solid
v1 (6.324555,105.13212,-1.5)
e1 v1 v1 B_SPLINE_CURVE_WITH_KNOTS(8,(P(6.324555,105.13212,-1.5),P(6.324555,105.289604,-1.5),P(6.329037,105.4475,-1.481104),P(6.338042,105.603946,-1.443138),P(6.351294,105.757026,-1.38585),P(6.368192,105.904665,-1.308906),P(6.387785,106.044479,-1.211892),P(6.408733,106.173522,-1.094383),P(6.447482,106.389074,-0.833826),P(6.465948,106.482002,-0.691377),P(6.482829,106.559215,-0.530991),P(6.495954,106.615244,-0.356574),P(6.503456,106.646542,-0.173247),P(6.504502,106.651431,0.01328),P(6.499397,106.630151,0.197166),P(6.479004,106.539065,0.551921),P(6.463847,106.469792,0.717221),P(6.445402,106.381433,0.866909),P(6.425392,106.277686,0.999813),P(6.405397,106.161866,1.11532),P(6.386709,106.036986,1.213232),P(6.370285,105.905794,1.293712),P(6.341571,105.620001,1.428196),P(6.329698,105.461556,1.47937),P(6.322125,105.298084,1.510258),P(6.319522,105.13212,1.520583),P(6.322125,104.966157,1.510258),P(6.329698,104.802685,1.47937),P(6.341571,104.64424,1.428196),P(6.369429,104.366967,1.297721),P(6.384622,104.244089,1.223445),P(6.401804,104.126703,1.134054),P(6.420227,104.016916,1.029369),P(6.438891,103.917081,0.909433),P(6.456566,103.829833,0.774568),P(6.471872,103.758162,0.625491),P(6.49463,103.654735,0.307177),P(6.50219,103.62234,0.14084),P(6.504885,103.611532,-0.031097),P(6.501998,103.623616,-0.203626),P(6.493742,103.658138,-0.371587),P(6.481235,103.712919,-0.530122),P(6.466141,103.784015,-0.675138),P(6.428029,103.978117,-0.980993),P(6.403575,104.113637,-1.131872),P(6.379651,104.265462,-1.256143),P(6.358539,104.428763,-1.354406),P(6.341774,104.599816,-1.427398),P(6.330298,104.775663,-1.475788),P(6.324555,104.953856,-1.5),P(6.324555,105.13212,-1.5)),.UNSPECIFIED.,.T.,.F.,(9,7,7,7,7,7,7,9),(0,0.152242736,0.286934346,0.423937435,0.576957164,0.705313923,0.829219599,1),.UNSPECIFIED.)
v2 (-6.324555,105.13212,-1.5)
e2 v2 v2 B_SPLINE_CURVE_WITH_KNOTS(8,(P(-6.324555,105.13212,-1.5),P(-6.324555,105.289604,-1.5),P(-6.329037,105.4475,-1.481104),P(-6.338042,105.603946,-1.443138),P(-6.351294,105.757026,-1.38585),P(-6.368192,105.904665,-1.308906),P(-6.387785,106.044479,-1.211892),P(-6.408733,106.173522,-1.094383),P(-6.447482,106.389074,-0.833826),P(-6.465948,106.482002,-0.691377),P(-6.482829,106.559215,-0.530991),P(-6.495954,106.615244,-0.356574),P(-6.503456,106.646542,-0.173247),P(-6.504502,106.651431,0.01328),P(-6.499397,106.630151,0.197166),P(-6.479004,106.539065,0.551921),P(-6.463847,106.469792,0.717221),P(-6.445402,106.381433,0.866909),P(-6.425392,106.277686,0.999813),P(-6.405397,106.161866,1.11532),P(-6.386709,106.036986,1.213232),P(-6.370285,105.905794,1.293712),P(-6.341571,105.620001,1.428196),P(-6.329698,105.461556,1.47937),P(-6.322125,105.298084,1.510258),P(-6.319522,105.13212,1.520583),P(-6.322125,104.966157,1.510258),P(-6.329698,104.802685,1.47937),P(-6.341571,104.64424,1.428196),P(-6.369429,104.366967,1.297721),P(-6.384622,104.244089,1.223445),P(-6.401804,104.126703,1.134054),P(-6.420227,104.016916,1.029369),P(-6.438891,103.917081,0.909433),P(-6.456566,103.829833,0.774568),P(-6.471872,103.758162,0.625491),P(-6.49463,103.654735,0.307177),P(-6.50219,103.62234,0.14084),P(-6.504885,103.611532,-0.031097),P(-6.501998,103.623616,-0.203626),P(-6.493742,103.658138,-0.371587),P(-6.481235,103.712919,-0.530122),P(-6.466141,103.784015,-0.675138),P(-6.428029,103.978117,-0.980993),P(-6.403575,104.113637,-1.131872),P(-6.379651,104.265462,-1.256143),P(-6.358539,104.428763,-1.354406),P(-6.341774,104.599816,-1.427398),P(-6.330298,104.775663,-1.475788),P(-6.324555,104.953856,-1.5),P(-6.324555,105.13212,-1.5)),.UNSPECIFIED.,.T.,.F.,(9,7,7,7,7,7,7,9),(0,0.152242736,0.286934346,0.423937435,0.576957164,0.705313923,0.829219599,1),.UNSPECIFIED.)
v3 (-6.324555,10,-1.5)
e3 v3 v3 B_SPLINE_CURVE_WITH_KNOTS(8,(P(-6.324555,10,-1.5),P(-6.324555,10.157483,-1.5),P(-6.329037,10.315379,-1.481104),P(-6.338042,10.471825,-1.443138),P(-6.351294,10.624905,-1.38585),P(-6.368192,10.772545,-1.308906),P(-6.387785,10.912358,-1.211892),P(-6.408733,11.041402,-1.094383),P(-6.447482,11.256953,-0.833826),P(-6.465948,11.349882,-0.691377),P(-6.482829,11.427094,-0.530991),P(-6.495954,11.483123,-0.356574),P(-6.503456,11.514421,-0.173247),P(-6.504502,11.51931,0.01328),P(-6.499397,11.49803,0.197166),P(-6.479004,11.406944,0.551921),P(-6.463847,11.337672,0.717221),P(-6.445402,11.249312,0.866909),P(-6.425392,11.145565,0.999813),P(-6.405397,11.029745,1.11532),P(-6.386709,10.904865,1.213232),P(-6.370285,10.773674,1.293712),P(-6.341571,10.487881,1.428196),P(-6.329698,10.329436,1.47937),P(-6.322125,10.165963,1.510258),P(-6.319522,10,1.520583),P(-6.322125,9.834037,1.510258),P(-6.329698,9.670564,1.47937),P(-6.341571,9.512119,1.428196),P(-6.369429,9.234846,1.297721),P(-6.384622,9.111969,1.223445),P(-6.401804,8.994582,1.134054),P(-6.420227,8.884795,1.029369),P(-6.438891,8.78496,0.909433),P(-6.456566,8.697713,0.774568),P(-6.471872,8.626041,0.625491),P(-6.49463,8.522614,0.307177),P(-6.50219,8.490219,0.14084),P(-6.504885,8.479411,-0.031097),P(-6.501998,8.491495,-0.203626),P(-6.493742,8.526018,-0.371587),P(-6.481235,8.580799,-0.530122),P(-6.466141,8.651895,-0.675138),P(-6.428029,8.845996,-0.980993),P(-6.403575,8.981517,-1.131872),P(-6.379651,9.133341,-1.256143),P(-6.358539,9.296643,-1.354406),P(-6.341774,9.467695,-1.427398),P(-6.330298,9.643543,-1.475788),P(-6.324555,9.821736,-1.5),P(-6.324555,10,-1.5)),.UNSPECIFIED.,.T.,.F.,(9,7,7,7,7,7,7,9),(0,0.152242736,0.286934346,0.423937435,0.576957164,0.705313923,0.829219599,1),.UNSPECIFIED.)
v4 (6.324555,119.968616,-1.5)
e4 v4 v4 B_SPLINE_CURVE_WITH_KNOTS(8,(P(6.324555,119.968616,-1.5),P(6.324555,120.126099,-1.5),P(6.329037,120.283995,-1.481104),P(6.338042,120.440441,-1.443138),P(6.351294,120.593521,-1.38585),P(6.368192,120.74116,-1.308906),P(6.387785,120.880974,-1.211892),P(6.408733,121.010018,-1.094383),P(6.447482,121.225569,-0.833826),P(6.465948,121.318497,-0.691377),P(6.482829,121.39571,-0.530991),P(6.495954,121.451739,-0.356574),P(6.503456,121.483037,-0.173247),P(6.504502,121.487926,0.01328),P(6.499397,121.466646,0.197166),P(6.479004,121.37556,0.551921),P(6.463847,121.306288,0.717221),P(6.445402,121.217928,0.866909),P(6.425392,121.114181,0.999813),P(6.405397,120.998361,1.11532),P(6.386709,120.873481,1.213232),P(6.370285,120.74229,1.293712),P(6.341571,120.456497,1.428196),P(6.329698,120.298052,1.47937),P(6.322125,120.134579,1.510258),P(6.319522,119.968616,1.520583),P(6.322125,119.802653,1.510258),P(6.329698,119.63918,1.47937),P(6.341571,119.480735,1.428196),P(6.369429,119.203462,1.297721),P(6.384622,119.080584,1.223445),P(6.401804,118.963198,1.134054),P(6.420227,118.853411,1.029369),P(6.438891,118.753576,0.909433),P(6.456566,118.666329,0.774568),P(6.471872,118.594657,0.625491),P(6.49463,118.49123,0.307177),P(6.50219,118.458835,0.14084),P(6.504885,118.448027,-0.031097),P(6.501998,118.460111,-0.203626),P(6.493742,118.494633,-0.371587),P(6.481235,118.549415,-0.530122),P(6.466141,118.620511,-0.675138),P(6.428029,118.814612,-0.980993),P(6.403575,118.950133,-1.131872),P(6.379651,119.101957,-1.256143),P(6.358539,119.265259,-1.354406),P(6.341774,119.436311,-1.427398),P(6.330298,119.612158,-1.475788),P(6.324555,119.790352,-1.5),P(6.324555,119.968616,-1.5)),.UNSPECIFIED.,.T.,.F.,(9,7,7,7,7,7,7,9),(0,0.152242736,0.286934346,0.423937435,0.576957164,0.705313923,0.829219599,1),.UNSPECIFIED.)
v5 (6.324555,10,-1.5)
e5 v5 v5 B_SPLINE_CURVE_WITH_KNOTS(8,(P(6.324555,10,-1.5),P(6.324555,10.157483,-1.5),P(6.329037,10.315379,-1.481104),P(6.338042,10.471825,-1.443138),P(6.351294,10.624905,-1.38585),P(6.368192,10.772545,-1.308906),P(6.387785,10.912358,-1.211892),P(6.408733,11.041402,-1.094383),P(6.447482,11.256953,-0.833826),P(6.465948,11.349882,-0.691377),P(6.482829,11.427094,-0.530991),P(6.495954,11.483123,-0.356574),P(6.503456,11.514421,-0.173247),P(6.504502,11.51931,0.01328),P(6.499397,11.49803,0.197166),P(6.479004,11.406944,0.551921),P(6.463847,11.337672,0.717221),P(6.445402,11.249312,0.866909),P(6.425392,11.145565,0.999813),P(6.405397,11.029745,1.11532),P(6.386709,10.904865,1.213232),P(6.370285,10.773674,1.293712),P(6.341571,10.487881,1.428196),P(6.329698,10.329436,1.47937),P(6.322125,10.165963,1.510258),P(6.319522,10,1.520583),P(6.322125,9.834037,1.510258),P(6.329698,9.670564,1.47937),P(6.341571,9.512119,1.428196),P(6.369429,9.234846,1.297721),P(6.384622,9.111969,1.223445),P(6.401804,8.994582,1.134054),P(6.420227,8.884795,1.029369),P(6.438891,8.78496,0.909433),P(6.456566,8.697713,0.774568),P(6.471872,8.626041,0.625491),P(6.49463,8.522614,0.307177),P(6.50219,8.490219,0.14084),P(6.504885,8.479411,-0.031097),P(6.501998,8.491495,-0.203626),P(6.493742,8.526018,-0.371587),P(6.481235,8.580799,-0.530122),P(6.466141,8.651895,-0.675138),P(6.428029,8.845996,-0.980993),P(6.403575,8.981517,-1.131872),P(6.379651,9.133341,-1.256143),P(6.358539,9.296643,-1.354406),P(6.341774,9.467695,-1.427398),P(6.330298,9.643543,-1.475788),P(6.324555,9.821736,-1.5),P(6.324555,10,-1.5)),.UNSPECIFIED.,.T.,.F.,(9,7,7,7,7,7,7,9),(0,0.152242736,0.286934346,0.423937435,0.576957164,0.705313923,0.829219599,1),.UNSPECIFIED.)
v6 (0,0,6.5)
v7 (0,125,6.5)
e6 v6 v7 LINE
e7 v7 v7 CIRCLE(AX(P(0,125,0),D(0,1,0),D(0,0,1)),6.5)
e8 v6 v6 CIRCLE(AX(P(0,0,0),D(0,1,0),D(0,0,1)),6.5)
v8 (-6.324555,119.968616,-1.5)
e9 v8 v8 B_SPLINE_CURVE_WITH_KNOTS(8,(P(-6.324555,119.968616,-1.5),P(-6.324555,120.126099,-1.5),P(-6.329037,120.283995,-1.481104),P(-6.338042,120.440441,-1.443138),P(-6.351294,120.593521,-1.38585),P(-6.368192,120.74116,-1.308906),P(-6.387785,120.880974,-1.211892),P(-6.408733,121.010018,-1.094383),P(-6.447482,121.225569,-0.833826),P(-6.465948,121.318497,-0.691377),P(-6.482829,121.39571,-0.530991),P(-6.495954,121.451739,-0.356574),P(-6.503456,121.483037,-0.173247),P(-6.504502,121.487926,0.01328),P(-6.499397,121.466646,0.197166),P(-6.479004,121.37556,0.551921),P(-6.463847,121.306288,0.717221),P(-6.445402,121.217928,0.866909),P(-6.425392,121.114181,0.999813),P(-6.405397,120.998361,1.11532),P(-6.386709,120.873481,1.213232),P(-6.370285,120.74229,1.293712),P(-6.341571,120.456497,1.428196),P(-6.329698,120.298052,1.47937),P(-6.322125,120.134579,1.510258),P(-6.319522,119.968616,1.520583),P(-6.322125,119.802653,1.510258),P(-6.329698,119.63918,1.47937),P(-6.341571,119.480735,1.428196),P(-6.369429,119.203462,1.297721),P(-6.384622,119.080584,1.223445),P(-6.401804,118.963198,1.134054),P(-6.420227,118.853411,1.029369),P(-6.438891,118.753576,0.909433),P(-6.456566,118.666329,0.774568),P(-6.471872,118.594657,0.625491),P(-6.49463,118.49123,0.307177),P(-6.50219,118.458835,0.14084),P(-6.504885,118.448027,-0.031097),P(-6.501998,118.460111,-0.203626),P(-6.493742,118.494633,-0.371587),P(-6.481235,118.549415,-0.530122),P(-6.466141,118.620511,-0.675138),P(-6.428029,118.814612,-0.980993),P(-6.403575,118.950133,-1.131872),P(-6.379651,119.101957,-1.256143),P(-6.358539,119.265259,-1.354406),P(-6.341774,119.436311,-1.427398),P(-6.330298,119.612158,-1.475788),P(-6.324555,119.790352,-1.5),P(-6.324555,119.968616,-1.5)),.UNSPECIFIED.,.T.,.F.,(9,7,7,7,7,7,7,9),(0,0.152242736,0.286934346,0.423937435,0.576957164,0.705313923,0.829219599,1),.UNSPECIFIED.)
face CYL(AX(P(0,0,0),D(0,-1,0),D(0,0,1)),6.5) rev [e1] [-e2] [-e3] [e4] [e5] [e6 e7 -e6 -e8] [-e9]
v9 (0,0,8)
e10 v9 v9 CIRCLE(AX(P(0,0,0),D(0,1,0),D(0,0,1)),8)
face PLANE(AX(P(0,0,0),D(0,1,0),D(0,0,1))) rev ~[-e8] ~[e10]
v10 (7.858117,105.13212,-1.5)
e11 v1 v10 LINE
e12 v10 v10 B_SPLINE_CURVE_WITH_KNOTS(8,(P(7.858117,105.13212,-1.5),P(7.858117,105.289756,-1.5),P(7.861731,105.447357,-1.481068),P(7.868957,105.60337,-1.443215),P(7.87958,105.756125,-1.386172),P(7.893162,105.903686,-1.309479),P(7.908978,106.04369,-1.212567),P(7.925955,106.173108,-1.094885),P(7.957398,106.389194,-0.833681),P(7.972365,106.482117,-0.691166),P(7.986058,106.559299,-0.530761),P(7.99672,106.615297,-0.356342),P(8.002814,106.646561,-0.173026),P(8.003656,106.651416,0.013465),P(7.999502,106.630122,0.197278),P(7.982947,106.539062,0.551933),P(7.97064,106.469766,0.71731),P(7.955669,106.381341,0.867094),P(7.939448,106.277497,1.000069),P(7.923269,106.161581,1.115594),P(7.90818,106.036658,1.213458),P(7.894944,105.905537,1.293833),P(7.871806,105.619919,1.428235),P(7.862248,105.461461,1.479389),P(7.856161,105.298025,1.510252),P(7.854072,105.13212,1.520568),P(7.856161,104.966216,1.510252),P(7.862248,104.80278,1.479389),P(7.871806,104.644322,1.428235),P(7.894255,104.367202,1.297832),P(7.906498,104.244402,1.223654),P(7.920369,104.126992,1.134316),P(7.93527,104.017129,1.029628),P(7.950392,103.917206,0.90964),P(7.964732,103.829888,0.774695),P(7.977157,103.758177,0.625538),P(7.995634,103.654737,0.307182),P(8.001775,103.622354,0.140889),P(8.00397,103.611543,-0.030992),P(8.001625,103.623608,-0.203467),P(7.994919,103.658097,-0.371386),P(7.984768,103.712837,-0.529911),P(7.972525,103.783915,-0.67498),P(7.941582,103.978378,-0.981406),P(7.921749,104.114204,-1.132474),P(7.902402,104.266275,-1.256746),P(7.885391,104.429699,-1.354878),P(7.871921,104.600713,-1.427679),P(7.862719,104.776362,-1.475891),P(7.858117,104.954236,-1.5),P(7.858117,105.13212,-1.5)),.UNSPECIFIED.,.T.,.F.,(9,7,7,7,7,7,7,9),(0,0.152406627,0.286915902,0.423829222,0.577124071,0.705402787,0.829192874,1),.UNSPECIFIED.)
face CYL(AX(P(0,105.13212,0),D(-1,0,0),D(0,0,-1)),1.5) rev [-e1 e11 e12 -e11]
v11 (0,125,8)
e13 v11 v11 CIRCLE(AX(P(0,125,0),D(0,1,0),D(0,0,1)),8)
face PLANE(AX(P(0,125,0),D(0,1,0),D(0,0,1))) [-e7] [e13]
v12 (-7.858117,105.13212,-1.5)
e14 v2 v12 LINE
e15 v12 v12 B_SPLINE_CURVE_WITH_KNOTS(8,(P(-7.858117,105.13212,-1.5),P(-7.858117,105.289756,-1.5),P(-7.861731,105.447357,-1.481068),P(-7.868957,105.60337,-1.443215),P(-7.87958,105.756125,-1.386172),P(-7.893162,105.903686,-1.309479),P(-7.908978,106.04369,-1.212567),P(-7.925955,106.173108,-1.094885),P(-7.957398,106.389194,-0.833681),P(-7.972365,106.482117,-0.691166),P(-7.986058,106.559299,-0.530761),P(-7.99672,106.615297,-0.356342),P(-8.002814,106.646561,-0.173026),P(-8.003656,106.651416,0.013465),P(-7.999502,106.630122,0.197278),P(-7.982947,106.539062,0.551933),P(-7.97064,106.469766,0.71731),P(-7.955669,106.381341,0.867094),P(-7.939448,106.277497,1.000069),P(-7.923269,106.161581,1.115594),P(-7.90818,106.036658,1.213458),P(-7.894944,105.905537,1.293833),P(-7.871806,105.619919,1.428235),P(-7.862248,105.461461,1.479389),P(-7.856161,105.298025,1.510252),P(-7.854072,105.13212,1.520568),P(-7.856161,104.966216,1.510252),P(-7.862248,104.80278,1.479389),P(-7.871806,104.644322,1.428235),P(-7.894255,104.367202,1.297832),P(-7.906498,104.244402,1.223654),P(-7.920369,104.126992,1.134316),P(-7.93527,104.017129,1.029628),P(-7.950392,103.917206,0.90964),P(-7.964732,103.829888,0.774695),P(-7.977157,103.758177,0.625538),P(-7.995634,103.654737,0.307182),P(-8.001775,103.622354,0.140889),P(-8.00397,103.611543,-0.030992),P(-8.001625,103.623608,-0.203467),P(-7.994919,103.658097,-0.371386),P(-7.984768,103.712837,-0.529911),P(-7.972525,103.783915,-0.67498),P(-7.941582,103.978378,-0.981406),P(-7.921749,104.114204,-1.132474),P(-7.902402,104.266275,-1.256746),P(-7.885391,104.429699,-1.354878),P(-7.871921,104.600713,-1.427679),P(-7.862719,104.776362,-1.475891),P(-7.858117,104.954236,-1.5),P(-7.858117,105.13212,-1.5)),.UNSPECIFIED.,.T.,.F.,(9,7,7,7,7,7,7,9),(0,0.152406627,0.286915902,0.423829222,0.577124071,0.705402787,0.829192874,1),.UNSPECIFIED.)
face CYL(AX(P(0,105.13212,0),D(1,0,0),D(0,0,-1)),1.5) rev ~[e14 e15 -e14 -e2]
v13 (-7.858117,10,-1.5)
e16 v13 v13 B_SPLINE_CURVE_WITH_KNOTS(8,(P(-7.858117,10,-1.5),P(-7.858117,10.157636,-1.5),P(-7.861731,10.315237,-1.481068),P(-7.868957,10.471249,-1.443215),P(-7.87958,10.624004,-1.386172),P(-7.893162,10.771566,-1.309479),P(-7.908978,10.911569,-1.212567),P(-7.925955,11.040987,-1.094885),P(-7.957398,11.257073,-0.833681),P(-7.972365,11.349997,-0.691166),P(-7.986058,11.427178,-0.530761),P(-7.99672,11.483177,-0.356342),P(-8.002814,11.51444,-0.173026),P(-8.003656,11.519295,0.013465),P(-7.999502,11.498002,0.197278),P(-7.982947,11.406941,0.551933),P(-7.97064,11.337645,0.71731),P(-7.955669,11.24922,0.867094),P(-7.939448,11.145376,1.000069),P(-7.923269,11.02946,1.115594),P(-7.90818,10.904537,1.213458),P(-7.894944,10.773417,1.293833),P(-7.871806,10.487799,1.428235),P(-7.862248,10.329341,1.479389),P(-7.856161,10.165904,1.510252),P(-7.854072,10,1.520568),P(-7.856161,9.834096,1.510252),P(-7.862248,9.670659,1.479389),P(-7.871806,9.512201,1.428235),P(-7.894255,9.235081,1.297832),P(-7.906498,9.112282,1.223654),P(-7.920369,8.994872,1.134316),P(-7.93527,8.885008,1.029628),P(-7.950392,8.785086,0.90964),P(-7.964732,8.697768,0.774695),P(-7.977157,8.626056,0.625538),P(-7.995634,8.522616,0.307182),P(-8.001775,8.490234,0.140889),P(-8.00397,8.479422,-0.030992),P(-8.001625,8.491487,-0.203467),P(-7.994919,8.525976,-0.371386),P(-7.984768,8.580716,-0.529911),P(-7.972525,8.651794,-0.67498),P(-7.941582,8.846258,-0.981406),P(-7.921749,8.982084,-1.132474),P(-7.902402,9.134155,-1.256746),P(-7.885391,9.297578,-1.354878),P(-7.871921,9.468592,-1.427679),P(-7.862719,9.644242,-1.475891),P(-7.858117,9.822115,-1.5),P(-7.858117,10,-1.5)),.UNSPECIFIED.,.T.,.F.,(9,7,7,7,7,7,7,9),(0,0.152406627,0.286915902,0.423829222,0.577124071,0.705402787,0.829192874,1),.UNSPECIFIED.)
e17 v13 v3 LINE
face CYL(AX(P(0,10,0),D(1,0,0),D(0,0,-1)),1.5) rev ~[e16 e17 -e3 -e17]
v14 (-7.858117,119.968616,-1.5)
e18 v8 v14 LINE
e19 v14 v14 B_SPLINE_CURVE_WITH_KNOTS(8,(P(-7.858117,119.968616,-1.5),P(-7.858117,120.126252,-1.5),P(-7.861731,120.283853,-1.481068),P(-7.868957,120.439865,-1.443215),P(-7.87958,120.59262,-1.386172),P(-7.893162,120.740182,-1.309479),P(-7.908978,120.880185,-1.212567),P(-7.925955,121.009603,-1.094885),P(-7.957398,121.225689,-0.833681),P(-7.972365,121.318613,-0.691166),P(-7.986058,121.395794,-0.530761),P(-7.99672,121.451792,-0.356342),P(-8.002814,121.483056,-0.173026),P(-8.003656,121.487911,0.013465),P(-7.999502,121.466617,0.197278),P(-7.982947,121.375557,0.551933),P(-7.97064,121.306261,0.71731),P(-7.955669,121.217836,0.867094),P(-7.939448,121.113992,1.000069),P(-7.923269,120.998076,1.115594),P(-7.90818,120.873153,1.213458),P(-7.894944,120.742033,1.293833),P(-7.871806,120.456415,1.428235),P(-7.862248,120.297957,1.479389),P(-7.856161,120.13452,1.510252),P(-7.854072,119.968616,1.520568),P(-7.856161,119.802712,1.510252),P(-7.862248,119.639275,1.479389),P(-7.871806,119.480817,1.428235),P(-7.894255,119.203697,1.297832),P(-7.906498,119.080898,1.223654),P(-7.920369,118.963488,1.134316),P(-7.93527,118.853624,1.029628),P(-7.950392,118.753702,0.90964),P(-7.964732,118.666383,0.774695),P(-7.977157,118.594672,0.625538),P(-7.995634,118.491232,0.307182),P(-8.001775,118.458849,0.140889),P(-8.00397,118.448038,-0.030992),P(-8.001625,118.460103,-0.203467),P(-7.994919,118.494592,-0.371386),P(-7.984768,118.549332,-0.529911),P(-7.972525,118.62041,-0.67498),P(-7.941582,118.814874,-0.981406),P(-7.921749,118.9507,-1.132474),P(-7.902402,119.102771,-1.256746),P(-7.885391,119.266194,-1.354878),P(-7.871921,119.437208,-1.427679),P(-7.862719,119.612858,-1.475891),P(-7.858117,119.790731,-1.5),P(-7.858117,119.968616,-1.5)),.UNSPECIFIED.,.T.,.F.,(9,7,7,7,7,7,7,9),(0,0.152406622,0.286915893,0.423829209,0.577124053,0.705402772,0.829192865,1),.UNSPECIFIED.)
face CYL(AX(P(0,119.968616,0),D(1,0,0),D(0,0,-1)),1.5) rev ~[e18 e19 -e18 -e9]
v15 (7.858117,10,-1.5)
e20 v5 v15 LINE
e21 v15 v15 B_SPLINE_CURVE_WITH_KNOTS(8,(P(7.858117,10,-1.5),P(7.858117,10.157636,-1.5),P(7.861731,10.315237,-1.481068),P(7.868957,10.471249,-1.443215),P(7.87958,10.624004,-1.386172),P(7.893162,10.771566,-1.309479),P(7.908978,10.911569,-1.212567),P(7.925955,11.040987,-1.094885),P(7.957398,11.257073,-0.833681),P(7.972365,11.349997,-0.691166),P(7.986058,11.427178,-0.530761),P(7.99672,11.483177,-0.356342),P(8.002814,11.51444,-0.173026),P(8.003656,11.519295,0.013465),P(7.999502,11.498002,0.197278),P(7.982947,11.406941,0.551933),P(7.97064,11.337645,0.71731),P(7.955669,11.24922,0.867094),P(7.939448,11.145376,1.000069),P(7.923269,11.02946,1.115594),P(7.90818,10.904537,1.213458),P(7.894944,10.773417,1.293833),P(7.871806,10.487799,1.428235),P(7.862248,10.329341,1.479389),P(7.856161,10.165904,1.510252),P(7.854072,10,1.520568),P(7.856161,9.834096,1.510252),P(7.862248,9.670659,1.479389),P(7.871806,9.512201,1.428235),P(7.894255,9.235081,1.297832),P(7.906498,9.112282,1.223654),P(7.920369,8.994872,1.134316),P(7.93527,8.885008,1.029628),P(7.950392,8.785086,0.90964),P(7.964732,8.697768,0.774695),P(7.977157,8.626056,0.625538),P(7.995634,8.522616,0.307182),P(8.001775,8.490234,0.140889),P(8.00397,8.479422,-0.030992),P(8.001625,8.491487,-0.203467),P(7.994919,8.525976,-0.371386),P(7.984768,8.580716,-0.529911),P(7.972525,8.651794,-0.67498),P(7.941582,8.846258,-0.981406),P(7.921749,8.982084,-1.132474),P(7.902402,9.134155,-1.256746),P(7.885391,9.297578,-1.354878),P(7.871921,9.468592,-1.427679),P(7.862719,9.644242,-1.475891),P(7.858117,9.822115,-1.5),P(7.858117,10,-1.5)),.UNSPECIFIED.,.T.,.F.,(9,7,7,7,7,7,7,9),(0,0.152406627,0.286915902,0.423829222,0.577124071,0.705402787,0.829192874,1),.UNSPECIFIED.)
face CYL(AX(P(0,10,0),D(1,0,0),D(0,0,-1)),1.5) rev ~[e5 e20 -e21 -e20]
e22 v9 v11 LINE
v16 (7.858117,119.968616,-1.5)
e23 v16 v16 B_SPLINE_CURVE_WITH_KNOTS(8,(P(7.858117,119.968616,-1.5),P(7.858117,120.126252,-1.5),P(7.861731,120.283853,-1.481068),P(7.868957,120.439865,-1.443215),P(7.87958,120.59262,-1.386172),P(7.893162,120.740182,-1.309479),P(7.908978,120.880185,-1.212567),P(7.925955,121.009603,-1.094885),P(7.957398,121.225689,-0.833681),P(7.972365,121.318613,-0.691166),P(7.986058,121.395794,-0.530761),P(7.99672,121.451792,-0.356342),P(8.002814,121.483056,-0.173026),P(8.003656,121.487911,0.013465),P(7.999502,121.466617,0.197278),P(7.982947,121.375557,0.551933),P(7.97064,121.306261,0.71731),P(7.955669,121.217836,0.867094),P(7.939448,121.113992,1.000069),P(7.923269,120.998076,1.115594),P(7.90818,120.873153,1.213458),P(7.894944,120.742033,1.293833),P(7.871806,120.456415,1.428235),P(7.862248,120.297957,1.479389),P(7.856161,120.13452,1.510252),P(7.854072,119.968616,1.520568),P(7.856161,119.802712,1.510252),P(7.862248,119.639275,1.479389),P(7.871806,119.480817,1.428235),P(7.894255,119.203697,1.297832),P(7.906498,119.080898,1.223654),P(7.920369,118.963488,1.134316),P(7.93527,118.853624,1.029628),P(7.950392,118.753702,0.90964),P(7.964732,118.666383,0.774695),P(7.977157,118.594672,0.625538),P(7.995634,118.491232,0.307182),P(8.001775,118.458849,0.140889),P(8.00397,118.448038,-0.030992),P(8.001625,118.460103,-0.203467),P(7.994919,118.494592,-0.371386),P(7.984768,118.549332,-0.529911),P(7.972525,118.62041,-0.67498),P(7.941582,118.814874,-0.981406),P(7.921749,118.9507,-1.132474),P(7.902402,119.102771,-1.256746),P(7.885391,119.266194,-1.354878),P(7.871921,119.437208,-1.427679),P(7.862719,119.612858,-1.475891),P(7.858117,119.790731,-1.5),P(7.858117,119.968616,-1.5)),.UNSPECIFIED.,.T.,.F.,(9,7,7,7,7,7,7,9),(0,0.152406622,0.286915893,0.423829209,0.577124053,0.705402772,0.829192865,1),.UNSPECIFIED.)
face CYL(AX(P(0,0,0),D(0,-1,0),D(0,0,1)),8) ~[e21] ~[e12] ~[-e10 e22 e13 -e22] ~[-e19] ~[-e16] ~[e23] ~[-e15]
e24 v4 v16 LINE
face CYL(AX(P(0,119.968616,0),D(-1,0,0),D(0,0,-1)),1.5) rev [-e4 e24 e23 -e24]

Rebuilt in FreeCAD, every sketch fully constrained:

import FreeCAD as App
import Part
import Sketcher
from FreeCAD import Vector

doc = App.newDocument("Part")
body = doc.addObject("PartDesign::Body", "Body")

# Sketch on XZ plane
sketch1 = doc.addObject("Sketcher::SketchObject", "Sketch")
body.addObject(sketch1)
sketch1.AttachmentSupport = (doc.XZ_Plane, [""])
sketch1.MapMode = "FlatFace"
sketch1.addGeometry([
    Part.Circle(Vector(0, 0, 0), Vector(0, 0, 1), 8),
    Part.Circle(Vector(0, 0, 0), Vector(0, 0, 1), 6.5),
], False)
sketch1.addConstraint([
    Sketcher.Constraint("Coincident", 0, 3, -1, 1),
    Sketcher.Constraint("Coincident", 1, 3, -1, 1),
    Sketcher.Constraint("Diameter", 0, 16.0),
    Sketcher.Constraint("Diameter", 1, 13.0),
])
pad1 = doc.addObject("PartDesign::Pad", "Pad")
body.addObject(pad1)
pad1.Profile = sketch1
pad1.Length = 125
pad1.Reversed = True

# Sketch on YZ plane
sketch2 = doc.addObject("Sketcher::SketchObject", "Sketch001")
body.addObject(sketch2)
sketch2.AttachmentSupport = (doc.YZ_Plane, [""])
sketch2.MapMode = "FlatFace"
sketch2.addGeometry([
    Part.Circle(Vector(119.968616, 0, 0), Vector(0, 0, 1), 1.5),
    Part.Circle(Vector(105.13212, 0, 0), Vector(0, 0, 1), 1.5),
    Part.Circle(Vector(10, 0, 0), Vector(0, 0, 1), 1.5),
], False)
sketch2.addConstraint([
    Sketcher.Constraint("Equal", 0, 1),
    Sketcher.Constraint("Equal", 1, 2),
    Sketcher.Constraint("PointOnObject", 0, 3, -1),
    Sketcher.Constraint("PointOnObject", 1, 3, -1),
    Sketcher.Constraint("PointOnObject", 2, 3, -1),
    Sketcher.Constraint("Diameter", 0, 3.0),
    Sketcher.Constraint("DistanceX", -1, 1, 2, 3, 10.0),
    Sketcher.Constraint("DistanceX", -1, 1, 1, 3, 105.13212),
    Sketcher.Constraint("DistanceX", -1, 1, 0, 3, 119.968616),
])
pocket1 = doc.addObject("PartDesign::Pocket", "Pocket")
body.addObject(pocket1)
pocket1.Profile = sketch2
pocket1.Length = 125
pocket1.Midplane = True

doc.recompute()
